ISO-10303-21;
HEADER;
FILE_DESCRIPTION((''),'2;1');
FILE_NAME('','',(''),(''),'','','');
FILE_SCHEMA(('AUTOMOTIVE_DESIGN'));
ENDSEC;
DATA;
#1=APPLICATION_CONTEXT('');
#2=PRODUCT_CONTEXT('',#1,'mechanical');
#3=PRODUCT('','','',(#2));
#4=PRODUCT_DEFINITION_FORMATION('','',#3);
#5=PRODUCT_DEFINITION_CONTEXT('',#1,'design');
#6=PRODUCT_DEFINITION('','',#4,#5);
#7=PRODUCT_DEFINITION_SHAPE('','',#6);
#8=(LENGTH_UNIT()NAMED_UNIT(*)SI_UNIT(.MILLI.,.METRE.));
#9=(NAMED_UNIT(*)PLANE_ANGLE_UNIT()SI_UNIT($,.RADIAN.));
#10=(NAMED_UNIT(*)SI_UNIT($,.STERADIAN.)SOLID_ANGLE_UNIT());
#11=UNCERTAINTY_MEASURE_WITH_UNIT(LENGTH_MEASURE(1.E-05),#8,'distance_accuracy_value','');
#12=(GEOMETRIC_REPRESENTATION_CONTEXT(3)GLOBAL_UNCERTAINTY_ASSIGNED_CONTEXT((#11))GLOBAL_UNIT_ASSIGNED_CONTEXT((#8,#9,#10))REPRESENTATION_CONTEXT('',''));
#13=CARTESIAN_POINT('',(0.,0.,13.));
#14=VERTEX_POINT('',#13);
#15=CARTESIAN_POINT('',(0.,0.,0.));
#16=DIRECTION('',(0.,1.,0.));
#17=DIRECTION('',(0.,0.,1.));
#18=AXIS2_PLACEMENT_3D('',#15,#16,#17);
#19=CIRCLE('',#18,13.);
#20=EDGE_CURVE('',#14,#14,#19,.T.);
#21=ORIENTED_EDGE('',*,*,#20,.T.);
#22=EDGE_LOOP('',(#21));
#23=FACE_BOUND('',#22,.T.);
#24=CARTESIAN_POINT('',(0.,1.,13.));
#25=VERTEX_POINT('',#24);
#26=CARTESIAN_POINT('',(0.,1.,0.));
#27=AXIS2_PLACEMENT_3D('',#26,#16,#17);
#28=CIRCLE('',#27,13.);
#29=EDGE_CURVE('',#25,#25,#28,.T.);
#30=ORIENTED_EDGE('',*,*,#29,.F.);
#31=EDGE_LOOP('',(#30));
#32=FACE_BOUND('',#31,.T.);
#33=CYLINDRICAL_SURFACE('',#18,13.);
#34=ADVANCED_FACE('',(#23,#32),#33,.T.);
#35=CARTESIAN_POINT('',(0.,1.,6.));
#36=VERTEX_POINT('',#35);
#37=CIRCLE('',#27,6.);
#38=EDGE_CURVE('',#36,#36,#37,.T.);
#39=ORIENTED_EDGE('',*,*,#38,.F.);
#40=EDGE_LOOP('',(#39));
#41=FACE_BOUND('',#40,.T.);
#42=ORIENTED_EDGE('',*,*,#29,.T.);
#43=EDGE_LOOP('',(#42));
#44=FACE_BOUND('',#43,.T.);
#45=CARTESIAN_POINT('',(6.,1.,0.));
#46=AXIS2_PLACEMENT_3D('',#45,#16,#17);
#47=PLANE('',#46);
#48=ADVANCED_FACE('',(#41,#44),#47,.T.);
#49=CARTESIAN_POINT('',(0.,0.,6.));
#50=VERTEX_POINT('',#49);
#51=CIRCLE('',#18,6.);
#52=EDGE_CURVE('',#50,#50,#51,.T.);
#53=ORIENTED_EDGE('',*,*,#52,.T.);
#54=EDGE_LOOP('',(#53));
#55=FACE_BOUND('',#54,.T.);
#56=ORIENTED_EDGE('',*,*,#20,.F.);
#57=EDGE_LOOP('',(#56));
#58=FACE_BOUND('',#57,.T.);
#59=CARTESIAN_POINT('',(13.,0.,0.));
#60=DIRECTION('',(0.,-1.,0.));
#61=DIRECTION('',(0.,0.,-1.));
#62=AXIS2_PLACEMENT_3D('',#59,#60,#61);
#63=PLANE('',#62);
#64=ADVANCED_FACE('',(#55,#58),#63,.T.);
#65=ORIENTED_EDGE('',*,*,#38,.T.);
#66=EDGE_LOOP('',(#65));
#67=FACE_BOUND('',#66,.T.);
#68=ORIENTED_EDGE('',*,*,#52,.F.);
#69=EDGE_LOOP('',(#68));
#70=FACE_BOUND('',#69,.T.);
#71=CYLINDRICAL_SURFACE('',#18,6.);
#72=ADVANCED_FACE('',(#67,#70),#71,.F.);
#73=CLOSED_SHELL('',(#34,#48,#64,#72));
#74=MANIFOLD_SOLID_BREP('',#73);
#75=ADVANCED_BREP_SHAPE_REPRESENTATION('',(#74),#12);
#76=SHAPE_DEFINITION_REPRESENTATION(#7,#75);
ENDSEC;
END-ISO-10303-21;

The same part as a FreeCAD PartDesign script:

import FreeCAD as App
import Part
import Sketcher

doc = App.newDocument("Part")
body = doc.addObject("PartDesign::Body", "Body")

sketch1 = body.newObject("Sketcher::SketchObject", "Sketch")
sketch1.AttachmentSupport = (doc.getObject("XY_Plane"), [""])
sketch1.MapMode = "FlatFace"
sketch1.addGeometry(Part.LineSegment(App.Vector(13, 1, 0), App.Vector(13, 0, 0)), False)
sketch1.addGeometry(Part.LineSegment(App.Vector(13, 0, 0), App.Vector(6, 0, 0)), False)
sketch1.addGeometry(Part.LineSegment(App.Vector(6, 0, 0), App.Vector(6, 1, 0)), False)
sketch1.addGeometry(Part.LineSegment(App.Vector(6, 1, 0), App.Vector(13, 1, 0)), False)
sketch1.addConstraint(Sketcher.Constraint("Coincident", 0, 2, 1, 1))
sketch1.addConstraint(Sketcher.Constraint("Coincident", 1, 2, 2, 1))
sketch1.addConstraint(Sketcher.Constraint("Coincident", 2, 2, 3, 1))
sketch1.addConstraint(Sketcher.Constraint("Coincident", 3, 2, 0, 1))
sketch1.addConstraint(Sketcher.Constraint("Vertical", 0))
sketch1.addConstraint(Sketcher.Constraint("Horizontal", 1))
sketch1.addConstraint(Sketcher.Constraint("Vertical", 2))
sketch1.addConstraint(Sketcher.Constraint("Horizontal", 3))
sketch1.addConstraint(Sketcher.Constraint("PointOnObject", 0, 2, -1))
sketch1.addConstraint(Sketcher.Constraint("DistanceX", 1, 2, 1, 1, 7.0))
sketch1.addConstraint(Sketcher.Constraint("DistanceY", 0, 2, 0, 1, 1.0))
sketch1.addConstraint(Sketcher.Constraint("DistanceX", -1, 1, 0, 2, 13.0))
revolution = body.newObject("PartDesign::Revolution", "Revolution")
revolution.Profile = sketch1
revolution.ReferenceAxis = (sketch1, ["V_Axis"])
revolution.Angle = 360

doc.recompute()
